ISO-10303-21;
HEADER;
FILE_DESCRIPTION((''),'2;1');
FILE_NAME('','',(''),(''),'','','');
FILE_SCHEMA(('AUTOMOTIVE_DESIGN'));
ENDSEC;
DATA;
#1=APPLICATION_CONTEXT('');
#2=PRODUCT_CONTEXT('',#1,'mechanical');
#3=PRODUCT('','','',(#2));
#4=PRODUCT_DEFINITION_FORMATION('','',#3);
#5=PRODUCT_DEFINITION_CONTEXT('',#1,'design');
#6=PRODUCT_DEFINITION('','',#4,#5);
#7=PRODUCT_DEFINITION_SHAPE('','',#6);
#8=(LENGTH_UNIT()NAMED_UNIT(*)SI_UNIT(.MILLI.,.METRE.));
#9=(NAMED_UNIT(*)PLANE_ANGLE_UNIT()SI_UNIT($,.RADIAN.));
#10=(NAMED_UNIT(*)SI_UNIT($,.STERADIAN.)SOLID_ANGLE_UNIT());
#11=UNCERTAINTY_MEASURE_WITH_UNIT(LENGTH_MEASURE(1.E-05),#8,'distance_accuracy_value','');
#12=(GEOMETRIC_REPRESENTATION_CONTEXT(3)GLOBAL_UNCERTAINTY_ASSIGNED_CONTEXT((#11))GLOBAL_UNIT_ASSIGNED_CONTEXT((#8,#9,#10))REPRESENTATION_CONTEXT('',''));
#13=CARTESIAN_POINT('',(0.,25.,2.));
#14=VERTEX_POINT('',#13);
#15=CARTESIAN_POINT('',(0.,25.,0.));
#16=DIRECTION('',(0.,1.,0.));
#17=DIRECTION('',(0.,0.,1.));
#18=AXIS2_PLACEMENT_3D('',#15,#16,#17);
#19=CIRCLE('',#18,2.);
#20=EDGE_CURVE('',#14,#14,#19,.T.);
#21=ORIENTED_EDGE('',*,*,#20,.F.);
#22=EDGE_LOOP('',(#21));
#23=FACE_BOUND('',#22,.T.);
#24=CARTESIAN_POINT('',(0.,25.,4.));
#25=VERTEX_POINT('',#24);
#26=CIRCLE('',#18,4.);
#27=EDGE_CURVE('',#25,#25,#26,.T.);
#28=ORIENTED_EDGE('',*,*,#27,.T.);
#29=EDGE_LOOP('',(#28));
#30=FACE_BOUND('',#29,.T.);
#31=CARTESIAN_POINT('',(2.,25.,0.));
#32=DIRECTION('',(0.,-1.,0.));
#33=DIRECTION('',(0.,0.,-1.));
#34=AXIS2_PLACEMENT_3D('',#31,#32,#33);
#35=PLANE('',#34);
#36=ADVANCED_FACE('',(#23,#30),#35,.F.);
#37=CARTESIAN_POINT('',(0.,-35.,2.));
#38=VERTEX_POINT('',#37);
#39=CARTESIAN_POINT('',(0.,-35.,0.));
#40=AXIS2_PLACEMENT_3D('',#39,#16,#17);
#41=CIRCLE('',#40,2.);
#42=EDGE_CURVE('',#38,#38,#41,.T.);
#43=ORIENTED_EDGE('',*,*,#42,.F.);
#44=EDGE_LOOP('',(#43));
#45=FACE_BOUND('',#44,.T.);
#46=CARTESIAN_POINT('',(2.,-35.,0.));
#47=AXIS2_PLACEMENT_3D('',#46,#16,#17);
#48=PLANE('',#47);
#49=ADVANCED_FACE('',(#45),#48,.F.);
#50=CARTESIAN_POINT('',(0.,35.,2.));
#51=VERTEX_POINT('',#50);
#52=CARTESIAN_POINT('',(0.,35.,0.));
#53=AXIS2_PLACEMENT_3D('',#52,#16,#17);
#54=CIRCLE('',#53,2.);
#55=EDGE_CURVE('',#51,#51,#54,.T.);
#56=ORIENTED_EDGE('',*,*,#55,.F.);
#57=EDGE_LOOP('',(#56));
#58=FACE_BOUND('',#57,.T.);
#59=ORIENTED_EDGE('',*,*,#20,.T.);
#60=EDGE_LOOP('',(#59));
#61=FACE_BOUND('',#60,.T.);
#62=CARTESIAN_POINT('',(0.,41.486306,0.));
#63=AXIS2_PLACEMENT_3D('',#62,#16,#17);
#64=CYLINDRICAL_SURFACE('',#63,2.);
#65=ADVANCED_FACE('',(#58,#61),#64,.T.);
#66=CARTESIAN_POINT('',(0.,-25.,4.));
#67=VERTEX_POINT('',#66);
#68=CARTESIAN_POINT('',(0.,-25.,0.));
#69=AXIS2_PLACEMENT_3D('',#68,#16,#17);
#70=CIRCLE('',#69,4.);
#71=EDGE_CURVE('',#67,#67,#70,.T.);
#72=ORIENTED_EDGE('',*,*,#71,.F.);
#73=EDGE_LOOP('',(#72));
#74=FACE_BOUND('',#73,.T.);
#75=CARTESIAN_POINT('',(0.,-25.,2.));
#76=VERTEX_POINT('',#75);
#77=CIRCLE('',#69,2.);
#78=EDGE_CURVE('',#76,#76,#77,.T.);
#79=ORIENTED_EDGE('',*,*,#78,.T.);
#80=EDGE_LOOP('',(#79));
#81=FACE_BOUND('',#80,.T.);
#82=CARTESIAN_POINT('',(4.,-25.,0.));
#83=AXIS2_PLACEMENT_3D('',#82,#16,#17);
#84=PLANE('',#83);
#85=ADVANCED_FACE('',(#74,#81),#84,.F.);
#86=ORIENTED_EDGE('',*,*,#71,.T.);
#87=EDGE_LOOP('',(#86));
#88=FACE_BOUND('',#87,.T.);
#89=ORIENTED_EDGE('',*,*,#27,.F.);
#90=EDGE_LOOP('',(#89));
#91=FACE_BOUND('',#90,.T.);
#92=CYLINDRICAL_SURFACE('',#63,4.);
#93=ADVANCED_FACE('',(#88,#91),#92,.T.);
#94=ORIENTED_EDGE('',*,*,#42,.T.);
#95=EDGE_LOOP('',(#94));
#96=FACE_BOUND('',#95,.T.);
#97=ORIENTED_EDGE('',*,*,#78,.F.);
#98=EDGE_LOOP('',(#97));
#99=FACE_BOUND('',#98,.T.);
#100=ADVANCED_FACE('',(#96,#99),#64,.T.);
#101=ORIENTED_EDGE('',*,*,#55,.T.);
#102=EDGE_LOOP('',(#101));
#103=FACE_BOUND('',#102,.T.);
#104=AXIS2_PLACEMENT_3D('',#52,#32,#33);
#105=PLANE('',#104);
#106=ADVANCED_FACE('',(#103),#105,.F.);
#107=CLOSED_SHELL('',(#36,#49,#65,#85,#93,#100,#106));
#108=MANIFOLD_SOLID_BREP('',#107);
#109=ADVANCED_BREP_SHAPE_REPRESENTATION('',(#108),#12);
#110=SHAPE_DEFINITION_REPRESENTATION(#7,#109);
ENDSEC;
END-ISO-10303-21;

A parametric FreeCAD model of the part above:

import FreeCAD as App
import Part
import Sketcher
from FreeCAD import Vector
Q = App.Units.Quantity


def add_polygon(sketch, points):
    """Adds a closed chain of lines whose ends are joined by coincident constraints."""
    first, n = sketch.GeometryCount, len(points)
    for a, b in zip(points, points[1:] + points[:1]):
        sketch.addGeometry(Part.LineSegment(App.Vector(*a, 0), App.Vector(*b, 0)), False)
    for i in range(n):
        sketch.addConstraint(Sketcher.Constraint("Coincident", first + i, 2, first + (i + 1) % n, 1))

doc = App.newDocument("Part")
params = doc.addObject("Spreadsheet::Sheet", "Params")
for row, (alias, value) in enumerate([
    ("sketch1_width", "2 mm"),
    ("sketch1_height", "70 mm"),
    ("sketch1_height2", "10 mm"),
    ("revolution_angle", "360 deg"),
], start=1):
    params.set(f"A{row}", alias)
    params.set(f"B{row}", "=" + value)
    params.setAlias(f"B{row}", alias)

body = doc.addObject("PartDesign::Body", "Body")

sketch1 = body.newObject("Sketcher::SketchObject", "Sketch")
sketch1.AttachmentSupport = (doc.getObject("XY_Plane"), [""])
sketch1.MapMode = "FlatFace"
add_polygon(sketch1, [(2, 35), (0, 35), (0, -35), (2, -35), (2, -25), (4, -25), (4, 25), (2, 25)])
sketch1.addConstraint(Sketcher.Constraint("Horizontal", 0))
sketch1.addConstraint(Sketcher.Constraint("Vertical", 1))
sketch1.addConstraint(Sketcher.Constraint("Horizontal", 2))
sketch1.addConstraint(Sketcher.Constraint("Vertical", 3))
sketch1.addConstraint(Sketcher.Constraint("Horizontal", 4))
sketch1.addConstraint(Sketcher.Constraint("Vertical", 5))
sketch1.addConstraint(Sketcher.Constraint("Horizontal", 6))
sketch1.addConstraint(Sketcher.Constraint("Vertical", 7))
sketch1.addConstraint(Sketcher.Constraint("Symmetric", 0, 2, 1, 2, -1, 1))
sketch1.addConstraint(Sketcher.Constraint("Symmetric", 3, 2, 6, 2, -1))
sketch1.addConstraint(Sketcher.Constraint("Equal", 2, 4))
sketch1.addConstraint(Sketcher.Constraint("DistanceX", 0, 2, 0, 1, Q("2 mm")))
sketch1.addConstraint(Sketcher.Constraint("DistanceY", 1, 2, 1, 1, Q("70 mm")))
sketch1.addConstraint(Sketcher.Constraint("DistanceY", 3, 1, 3, 2, Q("10 mm")))
sketch1.setExpression("Constraints[19]", "Params.sketch1_width")
sketch1.setExpression("Constraints[20]", "Params.sketch1_height")
sketch1.setExpression("Constraints[21]", "Params.sketch1_height2")
revolution = body.newObject("PartDesign::Revolution", "Revolution")
revolution.Profile = sketch1
revolution.ReferenceAxis = (sketch1, ["V_Axis"])
revolution.setExpression("Angle", "Params.revolution_angle")

doc.recompute()
